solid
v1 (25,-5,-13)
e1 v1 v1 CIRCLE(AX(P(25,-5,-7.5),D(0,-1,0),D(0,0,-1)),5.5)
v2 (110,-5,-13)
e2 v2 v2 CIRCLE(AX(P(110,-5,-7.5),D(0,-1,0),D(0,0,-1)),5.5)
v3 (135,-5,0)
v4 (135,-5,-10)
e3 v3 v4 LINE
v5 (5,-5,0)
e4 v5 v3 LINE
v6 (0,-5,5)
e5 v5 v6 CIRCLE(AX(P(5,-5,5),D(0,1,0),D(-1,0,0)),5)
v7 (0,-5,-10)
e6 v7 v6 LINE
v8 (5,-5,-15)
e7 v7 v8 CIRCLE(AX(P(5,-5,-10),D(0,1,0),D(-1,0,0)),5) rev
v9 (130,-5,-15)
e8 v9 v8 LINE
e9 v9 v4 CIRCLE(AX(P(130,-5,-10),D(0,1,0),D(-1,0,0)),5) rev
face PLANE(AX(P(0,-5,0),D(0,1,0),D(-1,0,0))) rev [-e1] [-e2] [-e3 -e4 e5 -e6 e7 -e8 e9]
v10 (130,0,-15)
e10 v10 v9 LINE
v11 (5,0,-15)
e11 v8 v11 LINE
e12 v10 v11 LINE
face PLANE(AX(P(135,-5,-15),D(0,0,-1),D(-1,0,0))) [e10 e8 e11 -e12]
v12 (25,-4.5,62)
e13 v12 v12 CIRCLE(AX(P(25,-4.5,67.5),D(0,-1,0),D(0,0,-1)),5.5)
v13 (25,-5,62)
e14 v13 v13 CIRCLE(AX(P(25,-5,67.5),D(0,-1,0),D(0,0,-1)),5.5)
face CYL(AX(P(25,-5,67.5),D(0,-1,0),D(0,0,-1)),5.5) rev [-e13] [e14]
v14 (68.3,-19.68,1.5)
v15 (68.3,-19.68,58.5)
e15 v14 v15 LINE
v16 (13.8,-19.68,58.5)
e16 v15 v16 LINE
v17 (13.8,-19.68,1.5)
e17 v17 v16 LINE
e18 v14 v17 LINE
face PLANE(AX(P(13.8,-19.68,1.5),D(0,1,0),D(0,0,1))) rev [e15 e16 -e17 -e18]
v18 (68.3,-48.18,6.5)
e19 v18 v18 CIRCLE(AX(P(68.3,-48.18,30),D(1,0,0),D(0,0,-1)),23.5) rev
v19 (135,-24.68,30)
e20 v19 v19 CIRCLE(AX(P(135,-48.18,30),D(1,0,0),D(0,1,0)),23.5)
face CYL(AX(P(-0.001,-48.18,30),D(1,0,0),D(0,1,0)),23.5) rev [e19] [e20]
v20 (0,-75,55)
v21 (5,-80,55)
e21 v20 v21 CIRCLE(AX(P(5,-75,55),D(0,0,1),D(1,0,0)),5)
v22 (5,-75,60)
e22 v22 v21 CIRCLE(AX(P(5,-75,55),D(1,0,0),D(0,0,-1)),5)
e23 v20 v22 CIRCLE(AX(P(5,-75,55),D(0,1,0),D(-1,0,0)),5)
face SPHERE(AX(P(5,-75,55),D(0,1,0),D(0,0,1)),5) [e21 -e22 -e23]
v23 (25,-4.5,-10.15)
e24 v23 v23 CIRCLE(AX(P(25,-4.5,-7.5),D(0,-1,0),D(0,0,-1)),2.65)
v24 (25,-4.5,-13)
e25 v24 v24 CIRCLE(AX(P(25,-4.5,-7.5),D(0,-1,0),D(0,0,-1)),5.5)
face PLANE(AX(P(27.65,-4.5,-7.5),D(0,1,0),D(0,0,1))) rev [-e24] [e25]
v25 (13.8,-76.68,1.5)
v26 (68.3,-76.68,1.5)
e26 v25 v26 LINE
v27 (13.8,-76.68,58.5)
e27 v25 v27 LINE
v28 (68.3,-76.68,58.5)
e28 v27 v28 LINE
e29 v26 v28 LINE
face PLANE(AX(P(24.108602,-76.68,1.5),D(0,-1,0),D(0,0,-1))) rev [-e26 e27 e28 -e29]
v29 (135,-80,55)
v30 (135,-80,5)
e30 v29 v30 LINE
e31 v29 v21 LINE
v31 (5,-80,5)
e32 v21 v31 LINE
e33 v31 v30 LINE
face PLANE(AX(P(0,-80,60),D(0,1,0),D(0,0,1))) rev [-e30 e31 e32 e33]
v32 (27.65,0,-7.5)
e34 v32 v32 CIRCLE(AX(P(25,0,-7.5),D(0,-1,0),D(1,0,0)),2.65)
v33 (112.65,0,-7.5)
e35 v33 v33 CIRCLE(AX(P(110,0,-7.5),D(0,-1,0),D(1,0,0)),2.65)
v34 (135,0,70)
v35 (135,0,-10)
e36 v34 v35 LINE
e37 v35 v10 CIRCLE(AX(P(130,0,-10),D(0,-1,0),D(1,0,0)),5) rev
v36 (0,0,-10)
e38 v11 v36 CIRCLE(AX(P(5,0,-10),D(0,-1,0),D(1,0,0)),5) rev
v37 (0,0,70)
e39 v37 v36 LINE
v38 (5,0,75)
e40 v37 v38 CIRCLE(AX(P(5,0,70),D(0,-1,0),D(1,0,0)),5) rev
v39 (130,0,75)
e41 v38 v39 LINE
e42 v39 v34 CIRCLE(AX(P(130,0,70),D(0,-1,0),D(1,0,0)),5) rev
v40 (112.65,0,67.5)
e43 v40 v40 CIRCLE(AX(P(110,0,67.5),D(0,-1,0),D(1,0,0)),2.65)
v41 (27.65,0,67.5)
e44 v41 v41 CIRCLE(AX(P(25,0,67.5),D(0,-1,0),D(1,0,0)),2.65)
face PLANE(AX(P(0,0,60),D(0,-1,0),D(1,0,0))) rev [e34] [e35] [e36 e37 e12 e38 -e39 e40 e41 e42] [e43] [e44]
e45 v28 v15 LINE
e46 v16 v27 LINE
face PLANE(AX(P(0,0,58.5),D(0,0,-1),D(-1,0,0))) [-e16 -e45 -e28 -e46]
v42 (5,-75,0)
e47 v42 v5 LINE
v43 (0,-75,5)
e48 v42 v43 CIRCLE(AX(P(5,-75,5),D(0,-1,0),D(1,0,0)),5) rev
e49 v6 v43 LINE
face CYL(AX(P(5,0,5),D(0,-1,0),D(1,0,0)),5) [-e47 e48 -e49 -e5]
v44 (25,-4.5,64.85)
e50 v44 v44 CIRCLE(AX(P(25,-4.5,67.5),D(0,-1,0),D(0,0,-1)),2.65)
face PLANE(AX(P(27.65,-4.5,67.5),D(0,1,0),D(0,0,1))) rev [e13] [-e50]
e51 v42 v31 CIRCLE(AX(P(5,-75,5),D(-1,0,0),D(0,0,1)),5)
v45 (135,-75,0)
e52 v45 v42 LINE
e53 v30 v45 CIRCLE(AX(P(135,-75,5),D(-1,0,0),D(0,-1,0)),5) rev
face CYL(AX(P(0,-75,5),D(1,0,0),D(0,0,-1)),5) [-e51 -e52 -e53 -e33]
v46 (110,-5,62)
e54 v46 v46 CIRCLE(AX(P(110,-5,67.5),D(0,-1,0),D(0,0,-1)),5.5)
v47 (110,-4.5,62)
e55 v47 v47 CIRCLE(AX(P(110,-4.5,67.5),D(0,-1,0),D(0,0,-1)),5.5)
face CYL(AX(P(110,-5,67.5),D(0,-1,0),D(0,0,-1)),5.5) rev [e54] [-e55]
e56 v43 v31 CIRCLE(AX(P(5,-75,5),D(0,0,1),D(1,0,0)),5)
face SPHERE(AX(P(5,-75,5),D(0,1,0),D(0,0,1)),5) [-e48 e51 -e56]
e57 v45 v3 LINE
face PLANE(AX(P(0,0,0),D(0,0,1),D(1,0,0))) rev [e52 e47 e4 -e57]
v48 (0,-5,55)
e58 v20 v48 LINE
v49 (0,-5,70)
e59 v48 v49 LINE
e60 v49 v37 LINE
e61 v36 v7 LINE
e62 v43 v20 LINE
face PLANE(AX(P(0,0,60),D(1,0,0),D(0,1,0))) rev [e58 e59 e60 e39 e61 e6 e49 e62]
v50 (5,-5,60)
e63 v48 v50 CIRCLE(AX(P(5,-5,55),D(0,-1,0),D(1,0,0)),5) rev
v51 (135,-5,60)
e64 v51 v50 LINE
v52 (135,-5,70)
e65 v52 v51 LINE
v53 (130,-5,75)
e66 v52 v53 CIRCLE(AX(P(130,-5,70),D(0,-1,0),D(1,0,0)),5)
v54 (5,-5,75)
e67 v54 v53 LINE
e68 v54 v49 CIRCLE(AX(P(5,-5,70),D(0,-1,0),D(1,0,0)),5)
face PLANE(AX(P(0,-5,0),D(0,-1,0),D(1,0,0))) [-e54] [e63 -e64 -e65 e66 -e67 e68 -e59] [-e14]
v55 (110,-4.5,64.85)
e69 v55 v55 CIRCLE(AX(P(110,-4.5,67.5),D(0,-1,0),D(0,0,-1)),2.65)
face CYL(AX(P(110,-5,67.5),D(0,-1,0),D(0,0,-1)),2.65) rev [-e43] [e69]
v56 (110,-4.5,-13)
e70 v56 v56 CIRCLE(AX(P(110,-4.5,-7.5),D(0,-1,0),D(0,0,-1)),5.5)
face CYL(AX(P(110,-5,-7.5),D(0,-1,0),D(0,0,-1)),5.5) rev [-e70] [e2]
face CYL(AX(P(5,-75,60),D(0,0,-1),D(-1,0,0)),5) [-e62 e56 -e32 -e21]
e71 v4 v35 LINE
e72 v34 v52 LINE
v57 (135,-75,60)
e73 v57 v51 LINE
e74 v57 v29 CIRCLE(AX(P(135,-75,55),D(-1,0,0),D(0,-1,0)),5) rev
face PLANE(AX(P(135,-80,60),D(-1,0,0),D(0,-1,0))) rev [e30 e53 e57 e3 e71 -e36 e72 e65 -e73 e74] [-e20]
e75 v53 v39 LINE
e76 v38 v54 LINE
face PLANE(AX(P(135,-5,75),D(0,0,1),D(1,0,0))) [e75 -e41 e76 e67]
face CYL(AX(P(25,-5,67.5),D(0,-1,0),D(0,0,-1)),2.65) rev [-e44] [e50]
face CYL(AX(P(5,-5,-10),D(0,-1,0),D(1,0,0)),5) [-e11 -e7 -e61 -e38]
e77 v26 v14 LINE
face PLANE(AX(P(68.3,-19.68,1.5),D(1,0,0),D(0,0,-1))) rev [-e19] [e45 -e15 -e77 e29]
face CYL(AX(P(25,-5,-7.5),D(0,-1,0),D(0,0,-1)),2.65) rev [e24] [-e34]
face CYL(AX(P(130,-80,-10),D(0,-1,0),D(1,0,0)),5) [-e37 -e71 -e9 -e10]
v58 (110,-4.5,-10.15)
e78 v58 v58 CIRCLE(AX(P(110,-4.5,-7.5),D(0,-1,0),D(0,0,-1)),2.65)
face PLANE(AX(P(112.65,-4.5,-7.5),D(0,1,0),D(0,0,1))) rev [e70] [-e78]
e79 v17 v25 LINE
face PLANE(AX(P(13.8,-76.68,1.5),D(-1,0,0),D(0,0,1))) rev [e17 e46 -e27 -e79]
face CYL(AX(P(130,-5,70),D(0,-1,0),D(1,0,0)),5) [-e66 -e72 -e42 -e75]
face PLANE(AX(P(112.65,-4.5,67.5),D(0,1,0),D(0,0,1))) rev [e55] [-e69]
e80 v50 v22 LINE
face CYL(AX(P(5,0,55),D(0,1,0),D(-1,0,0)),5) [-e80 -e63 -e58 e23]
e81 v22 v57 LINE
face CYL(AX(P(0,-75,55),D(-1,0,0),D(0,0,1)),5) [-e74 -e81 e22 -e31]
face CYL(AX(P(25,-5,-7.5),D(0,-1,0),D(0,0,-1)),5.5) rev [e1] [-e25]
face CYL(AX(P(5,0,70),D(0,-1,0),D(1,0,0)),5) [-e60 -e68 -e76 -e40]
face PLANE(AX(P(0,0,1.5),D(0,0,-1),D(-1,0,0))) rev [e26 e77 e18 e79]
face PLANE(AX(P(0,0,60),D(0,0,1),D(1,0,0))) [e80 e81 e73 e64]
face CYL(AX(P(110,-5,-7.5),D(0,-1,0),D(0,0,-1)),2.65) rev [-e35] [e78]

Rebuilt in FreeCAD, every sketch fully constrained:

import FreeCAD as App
import Part
import Sketcher

V = App.Vector


def edges_at(feature, points):
    """Names of the edges that pass closest to the given points."""
    edges = feature.Shape.Edges
    near = lambda p: min(range(len(edges)), key=lambda i: edges[i].distToShape(Part.Vertex(*p))[0])
    return sorted({f"Edge{near(p) + 1}" for p in points})


def add_polygon(sketch, points):
    """Adds a closed chain of lines whose ends are joined by coincident constraints."""
    first, n = sketch.GeometryCount, len(points)
    for a, b in zip(points, points[1:] + points[:1]):
        sketch.addGeometry(Part.LineSegment(App.Vector(*a, 0), App.Vector(*b, 0)), False)
    for i in range(n):
        sketch.addConstraint(Sketcher.Constraint("Coincident", first + i, 2, first + (i + 1) % n, 1))

doc = App.newDocument("Part")
body = doc.addObject("PartDesign::Body", "Body")

# Sketch on XY plane
sketch1 = body.newObject("Sketcher::SketchObject", "Sketch")
sketch1.AttachmentSupport = (doc.getObject("XY_Plane"), [""])
sketch1.MapMode = "FlatFace"
add_polygon(sketch1, [(0, 0), (0, -80), (135, -80), (135, 0)])  # lines 0-3
sketch1.addConstraint([
    Sketcher.Constraint("Vertical", 0),
    Sketcher.Constraint("Horizontal", 1),
    Sketcher.Constraint("Vertical", 2),
    Sketcher.Constraint("Horizontal", 3),
    Sketcher.Constraint("Coincident", 3, 2, -1, 1),
    Sketcher.Constraint("DistanceX", 1, 1, 1, 2, 135.0),
    Sketcher.Constraint("DistanceY", 0, 2, 0, 1, 80.0),
])
pad1 = body.newObject("PartDesign::Pad", "Pad")
pad1.Profile = sketch1
pad1.Length = 60

# Sketch on XY plane
sketch2 = body.newObject("Sketcher::SketchObject", "Sketch001")
sketch2.AttachmentSupport = (doc.getObject("XY_Plane"), [""])
sketch2.MapMode = "FlatFace"
sketch2.AttachmentOffset = App.Placement(V(0, 0, 58.5), App.Rotation())
add_polygon(sketch2, [(14, -77), (68, -77), (68, -20), (14, -20)])  # lines 0-3
sketch2.addConstraint([
    Sketcher.Constraint("Horizontal", 0),
    Sketcher.Constraint("Vertical", 1),
    Sketcher.Constraint("Horizontal", 2),
    Sketcher.Constraint("Vertical", 3),
    Sketcher.Constraint("DistanceY", 1, 1, 1, 2, 57.0),
    Sketcher.Constraint("DistanceX", 0, 1, 0, 2, 54.5),
    Sketcher.Constraint("DistanceX", -1, 1, 0, 2, 68.3),
    Sketcher.Constraint("DistanceY", 0, 2, -1, 1, 76.68),
])
pocket1 = body.newObject("PartDesign::Pocket", "Pocket")
pocket1.Profile = sketch2
pocket1.Length = 57

# Sketch on YZ plane
sketch3 = body.newObject("Sketcher::SketchObject", "Sketch002")
sketch3.AttachmentSupport = (doc.getObject("YZ_Plane"), [""])
sketch3.MapMode = "FlatFace"
sketch3.AttachmentOffset = App.Placement(V(0, 0, 135), App.Rotation())
sketch3.addGeometry(Part.Circle(V(-48, 30, 0), V(0, 0, 1), 24), False)
sketch3.addConstraint([
    Sketcher.Constraint("Diameter", 0, 47.0),
    Sketcher.Constraint("DistanceY", -1, 1, 0, 3, 30.0),
    Sketcher.Constraint("DistanceX", 0, 3, -1, 1, 48.18),
])
pocket2 = body.newObject("PartDesign::Pocket", "Pocket001")
pocket2.Profile = sketch3
pocket2.Type = "UpToFirst"

# Sketch on XZ plane
sketch4 = body.newObject("Sketcher::SketchObject", "Sketch003")
sketch4.AttachmentSupport = (doc.getObject("XZ_Plane"), [""])
sketch4.MapMode = "FlatFace"
add_polygon(sketch4, [(0, -15), (0, 0), (135, 0), (135, -15)])  # lines 0-3
add_polygon(sketch4, [(0, 60), (0, 75), (135, 75), (135, 60)])  # lines 4-7
sketch4.addConstraint([
    Sketcher.Constraint("Vertical", 0),
    Sketcher.Constraint("Horizontal", 1),
    Sketcher.Constraint("Vertical", 2),
    Sketcher.Constraint("Horizontal", 3),
    Sketcher.Constraint("Vertical", 4),
    Sketcher.Constraint("Horizontal", 5),
    Sketcher.Constraint("Vertical", 6),
    Sketcher.Constraint("Horizontal", 7),
    Sketcher.Constraint("Coincident", 0, 2, -1, 1),
    Sketcher.Constraint("PointOnObject", 4, 2, -2),
    Sketcher.Constraint("Vertical", 2, 2, 5, 2),
    Sketcher.Constraint("Equal", 2, 4),
    Sketcher.Constraint("DistanceX", 1, 1, 1, 2, 135.0),
    Sketcher.Constraint("DistanceY", 0, 1, 0, 2, 15.0),
    Sketcher.Constraint("DistanceY", -1, 1, 4, 2, 75.0),
])
pad2 = body.newObject("PartDesign::Pad", "Pad001")
pad2.Profile = sketch4
pad2.Length = 5

# Sketch on XZ plane
sketch5 = body.newObject("Sketcher::SketchObject", "Sketch004")
sketch5.AttachmentSupport = (doc.getObject("XZ_Plane"), [""])
sketch5.MapMode = "FlatFace"
sketch5.AttachmentOffset = App.Placement(V(0, 0, 5), App.Rotation())
sketch5.addGeometry([
    Part.Circle(V(110, -7.5, 0), V(0, 0, 1), 2.6),
    Part.Circle(V(25, -7.5, 0), V(0, 0, 1), 2.6),
    Part.Circle(V(110, 67.5, 0), V(0, 0, 1), 2.6),
    Part.Circle(V(25, 67.5, 0), V(0, 0, 1), 2.6),
], False)
sketch5.addConstraint([
    Sketcher.Constraint("Equal", 0, 1),
    Sketcher.Constraint("Equal", 1, 2),
    Sketcher.Constraint("Equal", 2, 3),
    Sketcher.Constraint("Horizontal", 0, 3, 1, 3),
    Sketcher.Constraint("Horizontal", 2, 3, 3, 3),
    Sketcher.Constraint("Vertical", 0, 3, 2, 3),
    Sketcher.Constraint("Vertical", 1, 3, 3, 3),
    Sketcher.Constraint("Diameter", 0, 5.3),
    Sketcher.Constraint("DistanceX", -1, 1, 0, 3, 110.0),
    Sketcher.Constraint("DistanceX", -1, 1, 1, 3, 25.0),
    Sketcher.Constraint("DistanceY", 0, 3, 2, 3, 75.0),
    Sketcher.Constraint("DistanceY", 0, 3, -1, 1, 7.5),
])
doc.recompute()
hole = body.newObject("PartDesign::Hole", "Hole")
hole.Profile = sketch5
hole.ThreadType = "None"
hole.Diameter = 5.3
hole.DepthType = "Dimension"
hole.Depth = 5.2
hole.DrillPoint = "Angled"
hole.DrillPointAngle = 118
hole.HoleCutType = "Counterbore"
hole.HoleCutDiameter = 11
hole.HoleCutDepth = 0.5
doc.recompute()

fillet = body.newObject("PartDesign::Fillet", "Fillet")
fillet.Base = (hole, edges_at(hole, [(0, -42.5, 0), (0, -42.5, 60)]))
fillet.Radius = 5
doc.recompute()

fillet2 = body.newObject("PartDesign::Fillet", "Fillet001")
fillet2.Base = (fillet, edges_at(fillet, [
    (70, -80, 60),
    (70, -80, 0),
    (0, -80, 30),
    (1.464, -80, 1.464),
    (1.464, -80, 58.536),
]))
fillet2.Radius = 5
doc.recompute()

fillet3 = body.newObject("PartDesign::Fillet", "Fillet002")
fillet3.Base = (fillet2, edges_at(fillet2, [
    (0, -2.5, -15),
    (135, -2.5, -15),
    (135, -2.5, 75),
    (0, -2.5, 75),
]))
fillet3.Radius = 5

doc.recompute()
